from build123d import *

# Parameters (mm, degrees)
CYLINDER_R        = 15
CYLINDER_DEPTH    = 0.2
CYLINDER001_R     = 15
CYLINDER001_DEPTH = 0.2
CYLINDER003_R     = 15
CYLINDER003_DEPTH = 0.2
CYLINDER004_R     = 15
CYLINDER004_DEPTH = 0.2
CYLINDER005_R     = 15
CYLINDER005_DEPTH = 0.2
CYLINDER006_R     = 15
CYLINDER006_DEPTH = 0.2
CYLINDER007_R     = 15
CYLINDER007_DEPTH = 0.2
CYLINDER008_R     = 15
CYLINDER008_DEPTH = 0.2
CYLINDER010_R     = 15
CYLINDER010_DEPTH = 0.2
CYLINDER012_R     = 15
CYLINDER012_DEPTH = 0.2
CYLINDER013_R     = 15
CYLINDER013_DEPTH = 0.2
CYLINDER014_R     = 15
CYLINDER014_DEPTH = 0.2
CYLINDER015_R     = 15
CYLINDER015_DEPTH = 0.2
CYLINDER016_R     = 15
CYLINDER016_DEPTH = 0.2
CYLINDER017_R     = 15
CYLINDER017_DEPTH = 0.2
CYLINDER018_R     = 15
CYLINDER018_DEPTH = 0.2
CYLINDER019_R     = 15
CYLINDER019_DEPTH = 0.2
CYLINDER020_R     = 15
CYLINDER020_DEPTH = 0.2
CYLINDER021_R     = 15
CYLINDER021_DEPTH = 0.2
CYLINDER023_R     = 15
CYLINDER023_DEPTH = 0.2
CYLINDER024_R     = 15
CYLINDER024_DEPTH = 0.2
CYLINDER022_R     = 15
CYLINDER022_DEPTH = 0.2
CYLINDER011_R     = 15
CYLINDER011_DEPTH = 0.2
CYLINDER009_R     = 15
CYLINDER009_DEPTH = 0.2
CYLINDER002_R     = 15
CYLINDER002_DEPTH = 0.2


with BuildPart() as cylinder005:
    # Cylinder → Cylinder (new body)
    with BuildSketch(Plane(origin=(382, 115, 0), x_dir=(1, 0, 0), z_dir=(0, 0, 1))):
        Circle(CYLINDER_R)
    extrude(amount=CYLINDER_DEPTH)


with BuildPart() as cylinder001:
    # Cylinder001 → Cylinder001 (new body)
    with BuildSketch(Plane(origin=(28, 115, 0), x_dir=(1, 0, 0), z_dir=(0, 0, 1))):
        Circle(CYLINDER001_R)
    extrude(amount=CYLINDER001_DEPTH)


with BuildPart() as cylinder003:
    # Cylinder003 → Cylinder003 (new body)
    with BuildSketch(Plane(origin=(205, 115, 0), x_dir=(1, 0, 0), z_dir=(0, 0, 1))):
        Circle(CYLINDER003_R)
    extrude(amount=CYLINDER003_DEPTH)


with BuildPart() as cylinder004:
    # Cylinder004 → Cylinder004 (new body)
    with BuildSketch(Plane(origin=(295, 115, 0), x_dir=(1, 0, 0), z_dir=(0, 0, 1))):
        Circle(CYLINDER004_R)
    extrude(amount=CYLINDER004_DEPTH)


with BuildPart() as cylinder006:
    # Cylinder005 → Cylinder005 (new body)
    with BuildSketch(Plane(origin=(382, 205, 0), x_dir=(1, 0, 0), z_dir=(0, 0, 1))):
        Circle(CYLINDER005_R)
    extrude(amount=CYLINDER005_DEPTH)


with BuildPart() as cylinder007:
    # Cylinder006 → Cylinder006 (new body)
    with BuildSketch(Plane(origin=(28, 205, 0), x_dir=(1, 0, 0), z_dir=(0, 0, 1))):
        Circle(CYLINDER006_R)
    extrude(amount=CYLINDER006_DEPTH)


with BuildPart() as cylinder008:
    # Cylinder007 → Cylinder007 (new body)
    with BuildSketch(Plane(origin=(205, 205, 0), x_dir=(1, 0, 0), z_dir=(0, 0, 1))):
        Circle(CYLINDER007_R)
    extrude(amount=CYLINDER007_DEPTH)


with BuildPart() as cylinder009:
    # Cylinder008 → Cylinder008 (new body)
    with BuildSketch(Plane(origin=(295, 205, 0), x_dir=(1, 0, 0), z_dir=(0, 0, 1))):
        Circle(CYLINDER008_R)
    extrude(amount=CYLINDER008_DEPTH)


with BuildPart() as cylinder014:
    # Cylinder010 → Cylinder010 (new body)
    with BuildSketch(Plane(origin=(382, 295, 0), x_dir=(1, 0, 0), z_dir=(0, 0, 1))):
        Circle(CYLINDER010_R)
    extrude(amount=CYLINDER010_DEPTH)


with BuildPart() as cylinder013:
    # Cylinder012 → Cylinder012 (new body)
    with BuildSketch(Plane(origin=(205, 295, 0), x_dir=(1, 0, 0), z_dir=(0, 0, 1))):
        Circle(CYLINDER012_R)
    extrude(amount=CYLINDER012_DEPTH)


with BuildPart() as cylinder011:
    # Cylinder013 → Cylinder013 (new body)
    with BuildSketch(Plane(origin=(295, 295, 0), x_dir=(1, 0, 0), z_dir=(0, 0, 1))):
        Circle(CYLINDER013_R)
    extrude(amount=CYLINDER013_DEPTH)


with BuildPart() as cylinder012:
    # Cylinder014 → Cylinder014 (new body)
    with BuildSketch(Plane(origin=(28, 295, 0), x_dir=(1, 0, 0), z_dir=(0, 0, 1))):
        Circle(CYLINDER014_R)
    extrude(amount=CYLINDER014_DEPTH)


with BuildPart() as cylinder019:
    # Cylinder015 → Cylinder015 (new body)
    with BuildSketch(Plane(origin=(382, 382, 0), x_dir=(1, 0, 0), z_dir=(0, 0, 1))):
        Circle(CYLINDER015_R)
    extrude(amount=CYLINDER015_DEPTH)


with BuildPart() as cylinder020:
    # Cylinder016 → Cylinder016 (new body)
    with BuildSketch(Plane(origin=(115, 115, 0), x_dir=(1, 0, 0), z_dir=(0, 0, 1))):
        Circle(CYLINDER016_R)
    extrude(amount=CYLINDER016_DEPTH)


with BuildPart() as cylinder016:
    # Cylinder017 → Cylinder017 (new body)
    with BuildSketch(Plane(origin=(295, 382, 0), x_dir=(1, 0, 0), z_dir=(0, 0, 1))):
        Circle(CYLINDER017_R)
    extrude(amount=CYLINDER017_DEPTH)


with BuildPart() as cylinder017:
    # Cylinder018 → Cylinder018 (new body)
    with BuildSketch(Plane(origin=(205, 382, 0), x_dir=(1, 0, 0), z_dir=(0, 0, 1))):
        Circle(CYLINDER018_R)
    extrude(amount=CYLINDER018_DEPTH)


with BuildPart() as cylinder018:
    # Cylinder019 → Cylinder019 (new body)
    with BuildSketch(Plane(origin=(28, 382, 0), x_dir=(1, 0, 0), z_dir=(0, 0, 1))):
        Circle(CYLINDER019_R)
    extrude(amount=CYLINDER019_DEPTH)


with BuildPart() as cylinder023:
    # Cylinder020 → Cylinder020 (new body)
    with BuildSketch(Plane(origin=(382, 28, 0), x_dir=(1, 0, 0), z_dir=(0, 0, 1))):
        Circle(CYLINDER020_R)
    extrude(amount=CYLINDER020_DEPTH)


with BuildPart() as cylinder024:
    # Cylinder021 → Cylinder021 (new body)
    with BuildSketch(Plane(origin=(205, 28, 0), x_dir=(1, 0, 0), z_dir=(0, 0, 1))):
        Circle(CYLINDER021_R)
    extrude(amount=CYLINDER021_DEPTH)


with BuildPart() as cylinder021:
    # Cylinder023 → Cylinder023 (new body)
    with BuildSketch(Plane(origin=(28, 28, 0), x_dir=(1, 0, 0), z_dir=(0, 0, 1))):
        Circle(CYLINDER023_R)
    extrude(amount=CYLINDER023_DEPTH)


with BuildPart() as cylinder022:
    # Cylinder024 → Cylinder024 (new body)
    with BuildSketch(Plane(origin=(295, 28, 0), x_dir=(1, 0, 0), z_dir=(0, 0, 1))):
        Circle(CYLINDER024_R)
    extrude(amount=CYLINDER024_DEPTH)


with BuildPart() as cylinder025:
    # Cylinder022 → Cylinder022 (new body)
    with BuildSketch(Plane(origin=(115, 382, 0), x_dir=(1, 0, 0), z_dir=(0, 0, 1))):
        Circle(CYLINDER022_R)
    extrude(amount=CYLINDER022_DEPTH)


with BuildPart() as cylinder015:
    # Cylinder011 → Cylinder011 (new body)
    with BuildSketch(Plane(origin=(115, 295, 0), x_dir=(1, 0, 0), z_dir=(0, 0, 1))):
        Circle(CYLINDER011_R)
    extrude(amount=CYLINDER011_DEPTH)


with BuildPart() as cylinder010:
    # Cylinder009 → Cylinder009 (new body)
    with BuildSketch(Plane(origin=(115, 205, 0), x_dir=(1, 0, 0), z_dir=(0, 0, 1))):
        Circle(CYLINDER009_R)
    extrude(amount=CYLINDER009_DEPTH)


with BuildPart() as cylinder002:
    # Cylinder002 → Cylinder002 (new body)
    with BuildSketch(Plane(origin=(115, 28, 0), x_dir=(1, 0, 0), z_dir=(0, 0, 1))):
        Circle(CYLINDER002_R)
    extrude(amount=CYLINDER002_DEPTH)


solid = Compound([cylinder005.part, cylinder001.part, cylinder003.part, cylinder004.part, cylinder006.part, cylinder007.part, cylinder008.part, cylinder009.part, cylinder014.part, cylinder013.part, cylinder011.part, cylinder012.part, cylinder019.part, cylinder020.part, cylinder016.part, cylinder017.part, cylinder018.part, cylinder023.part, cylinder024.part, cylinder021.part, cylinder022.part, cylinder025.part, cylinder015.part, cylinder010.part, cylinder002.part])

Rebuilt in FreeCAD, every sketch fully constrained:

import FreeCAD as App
import Part
import Sketcher
Q = App.Units.Quantity

doc = App.newDocument("Part")
body = doc.addObject("PartDesign::Body", "Body")

# Sketch on XY plane
sketch1 = body.newObject("Sketcher::SketchObject", "Sketch")
sketch1.AttachmentSupport = (doc.getObject("XY_Plane"), [""])
sketch1.MapMode = "FlatFace"
sketch1.addGeometry(Part.Circle(App.Vector(382, 115, 0), App.Vector(0, 0, 1), 15), False)
sketch1.addConstraint(Sketcher.Constraint("Diameter", 0, Q("30 mm")))
sketch1.addConstraint(Sketcher.Constraint("DistanceX", -1, 1, 0, 3, Q("382 mm")))
sketch1.addConstraint(Sketcher.Constraint("DistanceY", -1, 1, 0, 3, Q("115 mm")))
pad1 = body.newObject("PartDesign::Pad", "Pad")
pad1.Profile = sketch1
pad1.Length = 0.2
body2 = doc.addObject("PartDesign::Body", "Body001")

# Sketch on XY plane
sketch2 = body2.newObject("Sketcher::SketchObject", "Sketch001")
sketch2.AttachmentSupport = (doc.getObject("XY_Plane001"), [""])
sketch2.MapMode = "FlatFace"
sketch2.addGeometry(Part.Circle(App.Vector(28, 115, 0), App.Vector(0, 0, 1), 15), False)
sketch2.addConstraint(Sketcher.Constraint("Diameter", 0, Q("30 mm")))
sketch2.addConstraint(Sketcher.Constraint("DistanceX", -1, 1, 0, 3, Q("28 mm")))
sketch2.addConstraint(Sketcher.Constraint("DistanceY", -1, 1, 0, 3, Q("115 mm")))
pad2 = body2.newObject("PartDesign::Pad", "Pad001")
pad2.Profile = sketch2
pad2.Length = 0.2
body3 = doc.addObject("PartDesign::Body", "Body002")

# Sketch on XY plane
sketch3 = body3.newObject("Sketcher::SketchObject", "Sketch002")
sketch3.AttachmentSupport = (doc.getObject("XY_Plane002"), [""])
sketch3.MapMode = "FlatFace"
sketch3.addGeometry(Part.Circle(App.Vector(205, 115, 0), App.Vector(0, 0, 1), 15), False)
sketch3.addConstraint(Sketcher.Constraint("Diameter", 0, Q("30 mm")))
sketch3.addConstraint(Sketcher.Constraint("DistanceX", -1, 1, 0, 3, Q("205 mm")))
sketch3.addConstraint(Sketcher.Constraint("DistanceY", -1, 1, 0, 3, Q("115 mm")))
pad3 = body3.newObject("PartDesign::Pad", "Pad002")
pad3.Profile = sketch3
pad3.Length = 0.2
body4 = doc.addObject("PartDesign::Body", "Body003")

# Sketch on XY plane
sketch4 = body4.newObject("Sketcher::SketchObject", "Sketch003")
sketch4.AttachmentSupport = (doc.getObject("XY_Plane003"), [""])
sketch4.MapMode = "FlatFace"
sketch4.addGeometry(Part.Circle(App.Vector(295, 115, 0), App.Vector(0, 0, 1), 15), False)
sketch4.addConstraint(Sketcher.Constraint("Diameter", 0, Q("30 mm")))
sketch4.addConstraint(Sketcher.Constraint("DistanceX", -1, 1, 0, 3, Q("295 mm")))
sketch4.addConstraint(Sketcher.Constraint("DistanceY", -1, 1, 0, 3, Q("115 mm")))
pad4 = body4.newObject("PartDesign::Pad", "Pad003")
pad4.Profile = sketch4
pad4.Length = 0.2
body5 = doc.addObject("PartDesign::Body", "Body004")

# Sketch on XY plane
sketch5 = body5.newObject("Sketcher::SketchObject", "Sketch004")
sketch5.AttachmentSupport = (doc.getObject("XY_Plane004"), [""])
sketch5.MapMode = "FlatFace"
sketch5.addGeometry(Part.Circle(App.Vector(382, 205, 0), App.Vector(0, 0, 1), 15), False)
sketch5.addConstraint(Sketcher.Constraint("Diameter", 0, Q("30 mm")))
sketch5.addConstraint(Sketcher.Constraint("DistanceX", -1, 1, 0, 3, Q("382 mm")))
sketch5.addConstraint(Sketcher.Constraint("DistanceY", -1, 1, 0, 3, Q("205 mm")))
pad5 = body5.newObject("PartDesign::Pad", "Pad004")
pad5.Profile = sketch5
pad5.Length = 0.2
body6 = doc.addObject("PartDesign::Body", "Body005")

# Sketch on XY plane
sketch6 = body6.newObject("Sketcher::SketchObject", "Sketch005")
sketch6.AttachmentSupport = (doc.getObject("XY_Plane005"), [""])
sketch6.MapMode = "FlatFace"
sketch6.addGeometry(Part.Circle(App.Vector(28, 205, 0), App.Vector(0, 0, 1), 15), False)
sketch6.addConstraint(Sketcher.Constraint("Diameter", 0, Q("30 mm")))
sketch6.addConstraint(Sketcher.Constraint("DistanceX", -1, 1, 0, 3, Q("28 mm")))
sketch6.addConstraint(Sketcher.Constraint("DistanceY", -1, 1, 0, 3, Q("205 mm")))
pad6 = body6.newObject("PartDesign::Pad", "Pad005")
pad6.Profile = sketch6
pad6.Length = 0.2
body7 = doc.addObject("PartDesign::Body", "Body006")

# Sketch on XY plane
sketch7 = body7.newObject("Sketcher::SketchObject", "Sketch006")
sketch7.AttachmentSupport = (doc.getObject("XY_Plane006"), [""])
sketch7.MapMode = "FlatFace"
sketch7.addGeometry(Part.Circle(App.Vector(205, 205, 0), App.Vector(0, 0, 1), 15), False)
sketch7.addConstraint(Sketcher.Constraint("Diameter", 0, Q("30 mm")))
sketch7.addConstraint(Sketcher.Constraint("DistanceX", -1, 1, 0, 3, Q("205 mm")))
sketch7.addConstraint(Sketcher.Constraint("DistanceY", -1, 1, 0, 3, Q("205 mm")))
pad7 = body7.newObject("PartDesign::Pad", "Pad006")
pad7.Profile = sketch7
pad7.Length = 0.2
body8 = doc.addObject("PartDesign::Body", "Body007")

# Sketch on XY plane
sketch8 = body8.newObject("Sketcher::SketchObject", "Sketch007")
sketch8.AttachmentSupport = (doc.getObject("XY_Plane007"), [""])
sketch8.MapMode = "FlatFace"
sketch8.addGeometry(Part.Circle(App.Vector(295, 205, 0), App.Vector(0, 0, 1), 15), False)
sketch8.addConstraint(Sketcher.Constraint("Diameter", 0, Q("30 mm")))
sketch8.addConstraint(Sketcher.Constraint("DistanceX", -1, 1, 0, 3, Q("295 mm")))
sketch8.addConstraint(Sketcher.Constraint("DistanceY", -1, 1, 0, 3, Q("205 mm")))
pad8 = body8.newObject("PartDesign::Pad", "Pad007")
pad8.Profile = sketch8
pad8.Length = 0.2
body9 = doc.addObject("PartDesign::Body", "Body008")

# Sketch on XY plane
sketch9 = body9.newObject("Sketcher::SketchObject", "Sketch008")
sketch9.AttachmentSupport = (doc.getObject("XY_Plane008"), [""])
sketch9.MapMode = "FlatFace"
sketch9.addGeometry(Part.Circle(App.Vector(382, 295, 0), App.Vector(0, 0, 1), 15), False)
sketch9.addConstraint(Sketcher.Constraint("Diameter", 0, Q("30 mm")))
sketch9.addConstraint(Sketcher.Constraint("DistanceX", -1, 1, 0, 3, Q("382 mm")))
sketch9.addConstraint(Sketcher.Constraint("DistanceY", -1, 1, 0, 3, Q("295 mm")))
pad9 = body9.newObject("PartDesign::Pad", "Pad008")
pad9.Profile = sketch9
pad9.Length = 0.2
body10 = doc.addObject("PartDesign::Body", "Body009")

# Sketch on XY plane
sketch10 = body10.newObject("Sketcher::SketchObject", "Sketch009")
sketch10.AttachmentSupport = (doc.getObject("XY_Plane009"), [""])
sketch10.MapMode = "FlatFace"
sketch10.addGeometry(Part.Circle(App.Vector(205, 295, 0), App.Vector(0, 0, 1), 15), False)
sketch10.addConstraint(Sketcher.Constraint("Diameter", 0, Q("30 mm")))
sketch10.addConstraint(Sketcher.Constraint("DistanceX", -1, 1, 0, 3, Q("205 mm")))
sketch10.addConstraint(Sketcher.Constraint("DistanceY", -1, 1, 0, 3, Q("295 mm")))
pad10 = body10.newObject("PartDesign::Pad", "Pad009")
pad10.Profile = sketch10
pad10.Length = 0.2
body11 = doc.addObject("PartDesign::Body", "Body010")

# Sketch on XY plane
sketch11 = body11.newObject("Sketcher::SketchObject", "Sketch010")
sketch11.AttachmentSupport = (doc.getObject("XY_Plane010"), [""])
sketch11.MapMode = "FlatFace"
sketch11.addGeometry(Part.Circle(App.Vector(295, 295, 0), App.Vector(0, 0, 1), 15), False)
sketch11.addConstraint(Sketcher.Constraint("Diameter", 0, Q("30 mm")))
sketch11.addConstraint(Sketcher.Constraint("DistanceX", -1, 1, 0, 3, Q("295 mm")))
sketch11.addConstraint(Sketcher.Constraint("DistanceY", -1, 1, 0, 3, Q("295 mm")))
pad11 = body11.newObject("PartDesign::Pad", "Pad010")
pad11.Profile = sketch11
pad11.Length = 0.2
body12 = doc.addObject("PartDesign::Body", "Body011")

# Sketch on XY plane
sketch12 = body12.newObject("Sketcher::SketchObject", "Sketch011")
sketch12.AttachmentSupport = (doc.getObject("XY_Plane011"), [""])
sketch12.MapMode = "FlatFace"
sketch12.addGeometry(Part.Circle(App.Vector(28, 295, 0), App.Vector(0, 0, 1), 15), False)
sketch12.addConstraint(Sketcher.Constraint("Diameter", 0, Q("30 mm")))
sketch12.addConstraint(Sketcher.Constraint("DistanceX", -1, 1, 0, 3, Q("28 mm")))
sketch12.addConstraint(Sketcher.Constraint("DistanceY", -1, 1, 0, 3, Q("295 mm")))
pad12 = body12.newObject("PartDesign::Pad", "Pad011")
pad12.Profile = sketch12
pad12.Length = 0.2
body13 = doc.addObject("PartDesign::Body", "Body012")

# Sketch on XY plane
sketch13 = body13.newObject("Sketcher::SketchObject", "Sketch012")
sketch13.AttachmentSupport = (doc.getObject("XY_Plane012"), [""])
sketch13.MapMode = "FlatFace"
sketch13.addGeometry(Part.Circle(App.Vector(382, 382, 0), App.Vector(0, 0, 1), 15), False)
sketch13.addConstraint(Sketcher.Constraint("Diameter", 0, Q("30 mm")))
sketch13.addConstraint(Sketcher.Constraint("DistanceX", -1, 1, 0, 3, Q("382 mm")))
sketch13.addConstraint(Sketcher.Constraint("DistanceY", -1, 1, 0, 3, Q("382 mm")))
pad13 = body13.newObject("PartDesign::Pad", "Pad012")
pad13.Profile = sketch13
pad13.Length = 0.2
body14 = doc.addObject("PartDesign::Body", "Body013")

# Sketch on XY plane
sketch14 = body14.newObject("Sketcher::SketchObject", "Sketch013")
sketch14.AttachmentSupport = (doc.getObject("XY_Plane013"), [""])
sketch14.MapMode = "FlatFace"
sketch14.addGeometry(Part.Circle(App.Vector(115, 115, 0), App.Vector(0, 0, 1), 15), False)
sketch14.addConstraint(Sketcher.Constraint("Diameter", 0, Q("30 mm")))
sketch14.addConstraint(Sketcher.Constraint("DistanceX", -1, 1, 0, 3, Q("115 mm")))
sketch14.addConstraint(Sketcher.Constraint("DistanceY", -1, 1, 0, 3, Q("115 mm")))
pad14 = body14.newObject("PartDesign::Pad", "Pad013")
pad14.Profile = sketch14
pad14.Length = 0.2
body15 = doc.addObject("PartDesign::Body", "Body014")

# Sketch on XY plane
sketch15 = body15.newObject("Sketcher::SketchObject", "Sketch014")
sketch15.AttachmentSupport = (doc.getObject("XY_Plane014"), [""])
sketch15.MapMode = "FlatFace"
sketch15.addGeometry(Part.Circle(App.Vector(295, 382, 0), App.Vector(0, 0, 1), 15), False)
sketch15.addConstraint(Sketcher.Constraint("Diameter", 0, Q("30 mm")))
sketch15.addConstraint(Sketcher.Constraint("DistanceX", -1, 1, 0, 3, Q("295 mm")))
sketch15.addConstraint(Sketcher.Constraint("DistanceY", -1, 1, 0, 3, Q("382 mm")))
pad15 = body15.newObject("PartDesign::Pad", "Pad014")
pad15.Profile = sketch15
pad15.Length = 0.2
body16 = doc.addObject("PartDesign::Body", "Body015")

# Sketch on XY plane
sketch16 = body16.newObject("Sketcher::SketchObject", "Sketch015")
sketch16.AttachmentSupport = (doc.getObject("XY_Plane015"), [""])
sketch16.MapMode = "FlatFace"
sketch16.addGeometry(Part.Circle(App.Vector(205, 382, 0), App.Vector(0, 0, 1), 15), False)
sketch16.addConstraint(Sketcher.Constraint("Diameter", 0, Q("30 mm")))
sketch16.addConstraint(Sketcher.Constraint("DistanceX", -1, 1, 0, 3, Q("205 mm")))
sketch16.addConstraint(Sketcher.Constraint("DistanceY", -1, 1, 0, 3, Q("382 mm")))
pad16 = body16.newObject("PartDesign::Pad", "Pad015")
pad16.Profile = sketch16
pad16.Length = 0.2
body17 = doc.addObject("PartDesign::Body", "Body016")

# Sketch on XY plane
sketch17 = body17.newObject("Sketcher::SketchObject", "Sketch016")
sketch17.AttachmentSupport = (doc.getObject("XY_Plane016"), [""])
sketch17.MapMode = "FlatFace"
sketch17.addGeometry(Part.Circle(App.Vector(28, 382, 0), App.Vector(0, 0, 1), 15), False)
sketch17.addConstraint(Sketcher.Constraint("Diameter", 0, Q("30 mm")))
sketch17.addConstraint(Sketcher.Constraint("DistanceX", -1, 1, 0, 3, Q("28 mm")))
sketch17.addConstraint(Sketcher.Constraint("DistanceY", -1, 1, 0, 3, Q("382 mm")))
pad17 = body17.newObject("PartDesign::Pad", "Pad016")
pad17.Profile = sketch17
pad17.Length = 0.2
body18 = doc.addObject("PartDesign::Body", "Body017")

# Sketch on XY plane
sketch18 = body18.newObject("Sketcher::SketchObject", "Sketch017")
sketch18.AttachmentSupport = (doc.getObject("XY_Plane017"), [""])
sketch18.MapMode = "FlatFace"
sketch18.addGeometry(Part.Circle(App.Vector(382, 28, 0), App.Vector(0, 0, 1), 15), False)
sketch18.addConstraint(Sketcher.Constraint("Diameter", 0, Q("30 mm")))
sketch18.addConstraint(Sketcher.Constraint("DistanceX", -1, 1, 0, 3, Q("382 mm")))
sketch18.addConstraint(Sketcher.Constraint("DistanceY", -1, 1, 0, 3, Q("28 mm")))
pad18 = body18.newObject("PartDesign::Pad", "Pad017")
pad18.Profile = sketch18
pad18.Length = 0.2
body19 = doc.addObject("PartDesign::Body", "Body018")

# Sketch on XY plane
sketch19 = body19.newObject("Sketcher::SketchObject", "Sketch018")
sketch19.AttachmentSupport = (doc.getObject("XY_Plane018"), [""])
sketch19.MapMode = "FlatFace"
sketch19.addGeometry(Part.Circle(App.Vector(205, 28, 0), App.Vector(0, 0, 1), 15), False)
sketch19.addConstraint(Sketcher.Constraint("Diameter", 0, Q("30 mm")))
sketch19.addConstraint(Sketcher.Constraint("DistanceX", -1, 1, 0, 3, Q("205 mm")))
sketch19.addConstraint(Sketcher.Constraint("DistanceY", -1, 1, 0, 3, Q("28 mm")))
pad19 = body19.newObject("PartDesign::Pad", "Pad018")
pad19.Profile = sketch19
pad19.Length = 0.2
body20 = doc.addObject("PartDesign::Body", "Body019")

# Sketch on XY plane
sketch20 = body20.newObject("Sketcher::SketchObject", "Sketch019")
sketch20.AttachmentSupport = (doc.getObject("XY_Plane019"), [""])
sketch20.MapMode = "FlatFace"
sketch20.addGeometry(Part.Circle(App.Vector(28, 28, 0), App.Vector(0, 0, 1), 15), False)
sketch20.addConstraint(Sketcher.Constraint("Diameter", 0, Q("30 mm")))
sketch20.addConstraint(Sketcher.Constraint("DistanceX", -1, 1, 0, 3, Q("28 mm")))
sketch20.addConstraint(Sketcher.Constraint("DistanceY", -1, 1, 0, 3, Q("28 mm")))
pad20 = body20.newObject("PartDesign::Pad", "Pad019")
pad20.Profile = sketch20
pad20.Length = 0.2
body21 = doc.addObject("PartDesign::Body", "Body020")

# Sketch on XY plane
sketch21 = body21.newObject("Sketcher::SketchObject", "Sketch020")
sketch21.AttachmentSupport = (doc.getObject("XY_Plane020"), [""])
sketch21.MapMode = "FlatFace"
sketch21.addGeometry(Part.Circle(App.Vector(295, 28, 0), App.Vector(0, 0, 1), 15), False)
sketch21.addConstraint(Sketcher.Constraint("Diameter", 0, Q("30 mm")))
sketch21.addConstraint(Sketcher.Constraint("DistanceX", -1, 1, 0, 3, Q("295 mm")))
sketch21.addConstraint(Sketcher.Constraint("DistanceY", -1, 1, 0, 3, Q("28 mm")))
pad21 = body21.newObject("PartDesign::Pad", "Pad020")
pad21.Profile = sketch21
pad21.Length = 0.2
body22 = doc.addObject("PartDesign::Body", "Body021")

# Sketch on XY plane
sketch22 = body22.newObject("Sketcher::SketchObject", "Sketch021")
sketch22.AttachmentSupport = (doc.getObject("XY_Plane021"), [""])
sketch22.MapMode = "FlatFace"
sketch22.addGeometry(Part.Circle(App.Vector(115, 382, 0), App.Vector(0, 0, 1), 15), False)
sketch22.addConstraint(Sketcher.Constraint("Diameter", 0, Q("30 mm")))
sketch22.addConstraint(Sketcher.Constraint("DistanceX", -1, 1, 0, 3, Q("115 mm")))
sketch22.addConstraint(Sketcher.Constraint("DistanceY", -1, 1, 0, 3, Q("382 mm")))
pad22 = body22.newObject("PartDesign::Pad", "Pad021")
pad22.Profile = sketch22
pad22.Length = 0.2
body23 = doc.addObject("PartDesign::Body", "Body022")

# Sketch on XY plane
sketch23 = body23.newObject("Sketcher::SketchObject", "Sketch022")
sketch23.AttachmentSupport = (doc.getObject("XY_Plane022"), [""])
sketch23.MapMode = "FlatFace"
sketch23.addGeometry(Part.Circle(App.Vector(115, 295, 0), App.Vector(0, 0, 1), 15), False)
sketch23.addConstraint(Sketcher.Constraint("Diameter", 0, Q("30 mm")))
sketch23.addConstraint(Sketcher.Constraint("DistanceX", -1, 1, 0, 3, Q("115 mm")))
sketch23.addConstraint(Sketcher.Constraint("DistanceY", -1, 1, 0, 3, Q("295 mm")))
pad23 = body23.newObject("PartDesign::Pad", "Pad022")
pad23.Profile = sketch23
pad23.Length = 0.2
body24 = doc.addObject("PartDesign::Body", "Body023")

# Sketch on XY plane
sketch24 = body24.newObject("Sketcher::SketchObject", "Sketch023")
sketch24.AttachmentSupport = (doc.getObject("XY_Plane023"), [""])
sketch24.MapMode = "FlatFace"
sketch24.addGeometry(Part.Circle(App.Vector(115, 205, 0), App.Vector(0, 0, 1), 15), False)
sketch24.addConstraint(Sketcher.Constraint("Diameter", 0, Q("30 mm")))
sketch24.addConstraint(Sketcher.Constraint("DistanceX", -1, 1, 0, 3, Q("115 mm")))
sketch24.addConstraint(Sketcher.Constraint("DistanceY", -1, 1, 0, 3, Q("205 mm")))
pad24 = body24.newObject("PartDesign::Pad", "Pad023")
pad24.Profile = sketch24
pad24.Length = 0.2
body25 = doc.addObject("PartDesign::Body", "Body024")

# Sketch on XY plane
sketch25 = body25.newObject("Sketcher::SketchObject", "Sketch024")
sketch25.AttachmentSupport = (doc.getObject("XY_Plane024"), [""])
sketch25.MapMode = "FlatFace"
sketch25.addGeometry(Part.Circle(App.Vector(115, 28, 0), App.Vector(0, 0, 1), 15), False)
sketch25.addConstraint(Sketcher.Constraint("Diameter", 0, Q("30 mm")))
sketch25.addConstraint(Sketcher.Constraint("DistanceX", -1, 1, 0, 3, Q("115 mm")))
sketch25.addConstraint(Sketcher.Constraint("DistanceY", -1, 1, 0, 3, Q("28 mm")))
pad25 = body25.newObject("PartDesign::Pad", "Pad024")
pad25.Profile = sketch25
pad25.Length = 0.2

doc.recompute()
